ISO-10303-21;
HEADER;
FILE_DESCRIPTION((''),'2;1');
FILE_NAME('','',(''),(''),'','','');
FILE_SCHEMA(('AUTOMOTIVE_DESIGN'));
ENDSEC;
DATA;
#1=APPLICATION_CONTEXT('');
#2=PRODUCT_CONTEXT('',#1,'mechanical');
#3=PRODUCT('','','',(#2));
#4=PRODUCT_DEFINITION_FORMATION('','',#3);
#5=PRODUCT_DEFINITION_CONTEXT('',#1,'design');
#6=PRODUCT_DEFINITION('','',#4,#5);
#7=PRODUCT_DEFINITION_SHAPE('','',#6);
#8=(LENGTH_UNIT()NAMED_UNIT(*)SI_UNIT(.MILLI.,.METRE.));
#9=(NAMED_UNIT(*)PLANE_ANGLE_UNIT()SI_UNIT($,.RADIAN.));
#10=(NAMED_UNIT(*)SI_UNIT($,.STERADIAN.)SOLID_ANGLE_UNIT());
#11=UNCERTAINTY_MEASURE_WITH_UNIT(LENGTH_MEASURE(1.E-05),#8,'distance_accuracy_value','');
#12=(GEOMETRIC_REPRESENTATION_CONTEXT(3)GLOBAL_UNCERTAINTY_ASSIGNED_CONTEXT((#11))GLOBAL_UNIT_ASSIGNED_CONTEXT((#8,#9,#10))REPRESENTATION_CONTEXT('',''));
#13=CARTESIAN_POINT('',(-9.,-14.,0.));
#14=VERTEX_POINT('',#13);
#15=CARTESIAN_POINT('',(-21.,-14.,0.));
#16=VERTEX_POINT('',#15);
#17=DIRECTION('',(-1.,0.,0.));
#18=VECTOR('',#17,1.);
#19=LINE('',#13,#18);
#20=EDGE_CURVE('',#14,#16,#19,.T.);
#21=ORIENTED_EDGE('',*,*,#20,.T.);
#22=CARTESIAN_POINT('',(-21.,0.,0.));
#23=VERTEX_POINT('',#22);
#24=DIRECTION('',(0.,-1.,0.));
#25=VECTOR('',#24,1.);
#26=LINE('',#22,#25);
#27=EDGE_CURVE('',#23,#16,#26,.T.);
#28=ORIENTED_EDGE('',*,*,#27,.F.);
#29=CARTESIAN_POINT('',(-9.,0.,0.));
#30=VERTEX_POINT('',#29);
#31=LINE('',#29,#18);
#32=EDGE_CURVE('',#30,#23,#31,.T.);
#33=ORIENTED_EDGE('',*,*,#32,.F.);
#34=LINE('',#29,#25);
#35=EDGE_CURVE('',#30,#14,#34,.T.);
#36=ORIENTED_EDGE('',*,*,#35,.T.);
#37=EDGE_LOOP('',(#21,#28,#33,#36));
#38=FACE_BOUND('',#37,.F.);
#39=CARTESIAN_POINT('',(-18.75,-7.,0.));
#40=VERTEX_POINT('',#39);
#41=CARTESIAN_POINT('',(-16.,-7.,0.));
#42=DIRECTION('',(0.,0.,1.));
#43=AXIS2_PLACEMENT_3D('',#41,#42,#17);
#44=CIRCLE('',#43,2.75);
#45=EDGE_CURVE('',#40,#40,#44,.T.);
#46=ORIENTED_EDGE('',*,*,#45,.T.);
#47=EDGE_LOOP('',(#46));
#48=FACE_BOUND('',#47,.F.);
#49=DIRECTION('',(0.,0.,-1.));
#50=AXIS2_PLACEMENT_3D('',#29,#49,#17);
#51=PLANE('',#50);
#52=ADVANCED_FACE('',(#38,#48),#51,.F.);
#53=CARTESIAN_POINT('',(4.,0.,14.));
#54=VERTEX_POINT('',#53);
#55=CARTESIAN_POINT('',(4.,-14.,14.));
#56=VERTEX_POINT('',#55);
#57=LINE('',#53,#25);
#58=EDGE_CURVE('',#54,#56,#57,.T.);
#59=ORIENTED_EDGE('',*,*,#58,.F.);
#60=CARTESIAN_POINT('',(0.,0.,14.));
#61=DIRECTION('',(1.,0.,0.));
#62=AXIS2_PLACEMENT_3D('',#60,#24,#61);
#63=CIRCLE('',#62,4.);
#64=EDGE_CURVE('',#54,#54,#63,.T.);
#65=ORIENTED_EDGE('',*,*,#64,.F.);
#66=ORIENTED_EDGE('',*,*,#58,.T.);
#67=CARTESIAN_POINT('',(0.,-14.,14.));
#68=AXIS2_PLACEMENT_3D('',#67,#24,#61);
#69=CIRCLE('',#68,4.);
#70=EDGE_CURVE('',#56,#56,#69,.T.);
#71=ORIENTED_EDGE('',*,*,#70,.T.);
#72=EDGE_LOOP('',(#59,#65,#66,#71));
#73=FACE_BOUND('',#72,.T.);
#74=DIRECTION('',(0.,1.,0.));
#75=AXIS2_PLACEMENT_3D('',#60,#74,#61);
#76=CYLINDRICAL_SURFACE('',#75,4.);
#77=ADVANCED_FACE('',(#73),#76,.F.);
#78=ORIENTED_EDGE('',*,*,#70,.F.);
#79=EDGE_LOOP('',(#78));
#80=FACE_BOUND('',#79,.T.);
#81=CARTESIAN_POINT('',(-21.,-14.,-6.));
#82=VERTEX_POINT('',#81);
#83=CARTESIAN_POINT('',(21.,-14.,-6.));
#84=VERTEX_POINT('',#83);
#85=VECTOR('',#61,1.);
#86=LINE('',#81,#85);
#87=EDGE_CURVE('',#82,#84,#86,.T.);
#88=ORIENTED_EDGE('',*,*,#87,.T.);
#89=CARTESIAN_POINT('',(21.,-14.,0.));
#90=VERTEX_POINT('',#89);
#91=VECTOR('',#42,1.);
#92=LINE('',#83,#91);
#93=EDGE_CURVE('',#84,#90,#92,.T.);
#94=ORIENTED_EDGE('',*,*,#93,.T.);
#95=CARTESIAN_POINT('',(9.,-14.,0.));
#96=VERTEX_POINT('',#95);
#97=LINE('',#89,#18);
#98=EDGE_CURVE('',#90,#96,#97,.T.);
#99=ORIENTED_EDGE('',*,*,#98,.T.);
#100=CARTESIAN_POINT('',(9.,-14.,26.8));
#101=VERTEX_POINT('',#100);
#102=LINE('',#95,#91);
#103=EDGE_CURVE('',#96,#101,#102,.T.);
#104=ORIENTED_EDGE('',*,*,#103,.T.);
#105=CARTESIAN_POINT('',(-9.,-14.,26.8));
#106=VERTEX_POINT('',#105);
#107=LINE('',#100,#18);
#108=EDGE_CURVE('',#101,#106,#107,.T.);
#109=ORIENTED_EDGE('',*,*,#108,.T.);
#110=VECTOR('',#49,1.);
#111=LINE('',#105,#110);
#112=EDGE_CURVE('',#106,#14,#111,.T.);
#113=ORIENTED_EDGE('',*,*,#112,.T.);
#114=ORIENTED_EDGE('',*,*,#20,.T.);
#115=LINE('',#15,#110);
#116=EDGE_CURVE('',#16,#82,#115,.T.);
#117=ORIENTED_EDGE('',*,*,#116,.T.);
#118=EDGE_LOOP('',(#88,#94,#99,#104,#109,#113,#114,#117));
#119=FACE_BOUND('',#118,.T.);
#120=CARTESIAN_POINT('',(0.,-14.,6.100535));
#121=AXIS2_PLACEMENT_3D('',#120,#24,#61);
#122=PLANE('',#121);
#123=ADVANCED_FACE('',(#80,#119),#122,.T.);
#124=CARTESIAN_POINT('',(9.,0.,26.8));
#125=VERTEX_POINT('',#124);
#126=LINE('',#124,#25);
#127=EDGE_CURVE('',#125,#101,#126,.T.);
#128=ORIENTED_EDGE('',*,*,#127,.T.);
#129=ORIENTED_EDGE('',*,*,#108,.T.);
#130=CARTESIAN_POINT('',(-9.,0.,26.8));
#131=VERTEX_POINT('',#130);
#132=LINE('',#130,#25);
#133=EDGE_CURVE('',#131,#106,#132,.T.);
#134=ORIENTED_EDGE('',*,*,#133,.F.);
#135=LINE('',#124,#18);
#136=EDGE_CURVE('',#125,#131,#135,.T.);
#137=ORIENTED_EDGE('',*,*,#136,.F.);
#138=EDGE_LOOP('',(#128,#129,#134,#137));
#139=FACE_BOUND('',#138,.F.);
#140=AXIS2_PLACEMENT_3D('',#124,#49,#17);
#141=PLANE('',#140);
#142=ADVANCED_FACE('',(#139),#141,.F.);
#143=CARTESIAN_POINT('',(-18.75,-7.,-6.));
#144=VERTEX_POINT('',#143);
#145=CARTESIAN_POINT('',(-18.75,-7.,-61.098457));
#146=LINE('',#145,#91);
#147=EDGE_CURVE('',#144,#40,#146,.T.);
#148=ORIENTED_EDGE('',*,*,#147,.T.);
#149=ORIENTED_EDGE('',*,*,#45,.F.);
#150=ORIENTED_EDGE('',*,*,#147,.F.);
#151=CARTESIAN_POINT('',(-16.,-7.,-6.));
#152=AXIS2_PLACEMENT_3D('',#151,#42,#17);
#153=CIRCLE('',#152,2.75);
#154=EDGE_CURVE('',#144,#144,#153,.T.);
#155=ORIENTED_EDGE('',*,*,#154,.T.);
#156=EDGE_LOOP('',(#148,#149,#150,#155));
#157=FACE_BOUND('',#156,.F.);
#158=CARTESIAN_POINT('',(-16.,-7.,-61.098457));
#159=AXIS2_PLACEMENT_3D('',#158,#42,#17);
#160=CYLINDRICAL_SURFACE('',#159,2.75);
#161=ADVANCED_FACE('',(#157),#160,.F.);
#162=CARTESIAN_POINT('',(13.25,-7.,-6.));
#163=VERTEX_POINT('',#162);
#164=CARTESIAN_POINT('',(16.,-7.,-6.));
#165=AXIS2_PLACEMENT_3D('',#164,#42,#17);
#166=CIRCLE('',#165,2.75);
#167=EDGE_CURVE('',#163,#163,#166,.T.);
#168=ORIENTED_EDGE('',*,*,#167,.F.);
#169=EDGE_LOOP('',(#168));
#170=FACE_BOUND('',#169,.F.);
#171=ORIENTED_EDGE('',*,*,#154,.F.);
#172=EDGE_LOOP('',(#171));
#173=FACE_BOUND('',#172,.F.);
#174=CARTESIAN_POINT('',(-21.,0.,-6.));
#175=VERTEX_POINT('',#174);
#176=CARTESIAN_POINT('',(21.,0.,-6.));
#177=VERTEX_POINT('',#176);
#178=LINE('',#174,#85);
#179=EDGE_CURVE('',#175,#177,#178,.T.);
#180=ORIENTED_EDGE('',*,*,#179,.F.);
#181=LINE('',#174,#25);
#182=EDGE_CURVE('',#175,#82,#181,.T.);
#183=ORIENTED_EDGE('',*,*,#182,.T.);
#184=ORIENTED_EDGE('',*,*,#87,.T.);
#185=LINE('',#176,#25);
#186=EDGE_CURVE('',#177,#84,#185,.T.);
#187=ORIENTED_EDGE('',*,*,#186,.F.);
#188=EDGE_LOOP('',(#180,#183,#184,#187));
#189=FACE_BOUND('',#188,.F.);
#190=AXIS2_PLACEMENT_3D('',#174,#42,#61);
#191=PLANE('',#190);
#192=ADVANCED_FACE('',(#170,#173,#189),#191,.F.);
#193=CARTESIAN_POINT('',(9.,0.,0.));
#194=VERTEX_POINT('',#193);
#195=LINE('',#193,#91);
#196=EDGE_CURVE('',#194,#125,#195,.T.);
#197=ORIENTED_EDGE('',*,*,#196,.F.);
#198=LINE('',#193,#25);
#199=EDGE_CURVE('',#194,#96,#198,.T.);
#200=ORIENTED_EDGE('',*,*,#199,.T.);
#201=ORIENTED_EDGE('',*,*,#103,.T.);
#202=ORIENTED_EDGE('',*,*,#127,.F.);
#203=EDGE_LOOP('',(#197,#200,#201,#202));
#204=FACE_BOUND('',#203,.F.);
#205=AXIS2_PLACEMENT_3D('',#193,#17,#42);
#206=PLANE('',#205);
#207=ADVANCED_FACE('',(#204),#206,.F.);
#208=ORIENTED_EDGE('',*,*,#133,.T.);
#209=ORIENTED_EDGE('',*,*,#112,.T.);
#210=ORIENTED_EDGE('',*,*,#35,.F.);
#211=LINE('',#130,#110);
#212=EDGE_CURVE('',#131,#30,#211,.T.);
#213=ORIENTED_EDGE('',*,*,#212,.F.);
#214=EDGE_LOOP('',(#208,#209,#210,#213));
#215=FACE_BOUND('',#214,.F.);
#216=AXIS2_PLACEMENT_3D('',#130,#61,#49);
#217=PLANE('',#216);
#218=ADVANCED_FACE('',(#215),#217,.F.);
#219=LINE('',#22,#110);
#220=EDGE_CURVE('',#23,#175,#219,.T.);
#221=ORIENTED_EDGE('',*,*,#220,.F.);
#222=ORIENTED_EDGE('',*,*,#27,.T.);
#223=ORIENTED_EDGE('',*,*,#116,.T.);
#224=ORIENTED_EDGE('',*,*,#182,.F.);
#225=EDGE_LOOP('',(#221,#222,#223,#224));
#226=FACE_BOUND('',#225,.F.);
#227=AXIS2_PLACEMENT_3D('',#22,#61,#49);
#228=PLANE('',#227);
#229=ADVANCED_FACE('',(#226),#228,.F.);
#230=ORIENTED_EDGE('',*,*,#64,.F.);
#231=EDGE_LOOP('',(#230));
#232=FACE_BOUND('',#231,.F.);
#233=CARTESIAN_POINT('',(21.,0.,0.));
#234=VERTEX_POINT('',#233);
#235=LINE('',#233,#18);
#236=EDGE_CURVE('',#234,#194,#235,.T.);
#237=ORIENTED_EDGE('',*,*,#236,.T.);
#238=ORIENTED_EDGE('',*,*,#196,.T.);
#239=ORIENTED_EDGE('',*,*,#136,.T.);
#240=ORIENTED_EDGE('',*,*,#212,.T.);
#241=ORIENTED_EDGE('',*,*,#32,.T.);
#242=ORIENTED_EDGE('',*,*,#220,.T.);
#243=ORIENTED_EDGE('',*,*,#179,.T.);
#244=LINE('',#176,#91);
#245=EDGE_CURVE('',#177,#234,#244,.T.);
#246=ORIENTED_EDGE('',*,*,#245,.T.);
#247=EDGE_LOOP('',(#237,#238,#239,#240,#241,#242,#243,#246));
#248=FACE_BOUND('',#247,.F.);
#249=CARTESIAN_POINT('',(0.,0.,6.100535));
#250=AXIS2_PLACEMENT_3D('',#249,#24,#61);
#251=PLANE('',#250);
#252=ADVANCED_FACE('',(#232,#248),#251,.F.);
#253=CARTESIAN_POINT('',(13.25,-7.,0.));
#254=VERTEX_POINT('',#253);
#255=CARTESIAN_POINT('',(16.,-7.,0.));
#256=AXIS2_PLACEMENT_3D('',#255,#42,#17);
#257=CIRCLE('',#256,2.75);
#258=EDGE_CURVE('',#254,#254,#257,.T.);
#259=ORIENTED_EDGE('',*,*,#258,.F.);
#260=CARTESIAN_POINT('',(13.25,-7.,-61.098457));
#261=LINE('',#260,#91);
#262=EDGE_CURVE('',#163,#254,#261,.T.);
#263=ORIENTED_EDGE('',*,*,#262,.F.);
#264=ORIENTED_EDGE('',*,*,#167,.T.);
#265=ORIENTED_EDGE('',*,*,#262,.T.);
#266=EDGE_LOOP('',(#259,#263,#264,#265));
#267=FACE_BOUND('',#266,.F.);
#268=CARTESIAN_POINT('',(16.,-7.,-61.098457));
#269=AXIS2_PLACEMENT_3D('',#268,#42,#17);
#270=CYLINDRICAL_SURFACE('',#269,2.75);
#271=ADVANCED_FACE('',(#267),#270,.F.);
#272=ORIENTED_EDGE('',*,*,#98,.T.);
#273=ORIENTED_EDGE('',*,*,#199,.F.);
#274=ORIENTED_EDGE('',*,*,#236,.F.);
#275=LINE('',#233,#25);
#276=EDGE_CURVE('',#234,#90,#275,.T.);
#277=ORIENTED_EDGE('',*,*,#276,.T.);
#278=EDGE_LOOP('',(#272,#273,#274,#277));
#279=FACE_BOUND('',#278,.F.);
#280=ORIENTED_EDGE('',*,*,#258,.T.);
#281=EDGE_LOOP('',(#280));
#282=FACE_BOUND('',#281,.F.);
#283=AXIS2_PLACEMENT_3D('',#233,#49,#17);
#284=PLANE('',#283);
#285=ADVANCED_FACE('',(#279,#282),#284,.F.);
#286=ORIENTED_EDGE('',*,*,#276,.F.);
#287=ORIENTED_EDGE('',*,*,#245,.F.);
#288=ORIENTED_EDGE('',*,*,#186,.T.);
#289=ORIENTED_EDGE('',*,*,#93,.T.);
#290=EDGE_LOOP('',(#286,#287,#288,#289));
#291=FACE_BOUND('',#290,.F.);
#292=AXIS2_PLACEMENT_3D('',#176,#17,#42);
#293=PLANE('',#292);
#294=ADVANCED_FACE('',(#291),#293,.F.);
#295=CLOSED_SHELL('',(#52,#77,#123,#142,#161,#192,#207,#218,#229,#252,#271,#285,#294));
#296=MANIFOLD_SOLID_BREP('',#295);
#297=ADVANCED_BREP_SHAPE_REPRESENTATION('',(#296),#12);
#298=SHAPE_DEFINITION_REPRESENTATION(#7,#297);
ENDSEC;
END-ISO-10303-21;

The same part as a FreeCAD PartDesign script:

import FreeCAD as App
import Part
import Sketcher

V = App.Vector

doc = App.newDocument("Part")
body = doc.addObject("PartDesign::Body", "Body")

sketch1 = body.newObject("Sketcher::SketchObject", "Sketch")
sketch1.AttachmentSupport = (doc.getObject("XZ_Plane"), [""])
sketch1.MapMode = "FlatFace"
sketch1.addGeometry([
    Part.LineSegment(V(-21, -6, 0), V(21, -6, 0)),
    Part.LineSegment(V(21, -6, 0), V(21, 0, 0)),
    Part.LineSegment(V(21, 0, 0), V(9, 0, 0)),
    Part.LineSegment(V(9, 0, 0), V(9, 26.8, 0)),
    Part.LineSegment(V(9, 26.8, 0), V(-9, 26.8, 0)),
    Part.LineSegment(V(-9, 26.8, 0), V(-9, 0, 0)),
    Part.LineSegment(V(-9, 0, 0), V(-21, 0, 0)),
    Part.LineSegment(V(-21, 0, 0), V(-21, -6, 0)),
    Part.Circle(V(0, 14, 0), V(0, 0, 1), 4),
], False)
sketch1.addConstraint([
    Sketcher.Constraint("Coincident", 0, 2, 1, 1),
    Sketcher.Constraint("Coincident", 1, 2, 2, 1),
    Sketcher.Constraint("Coincident", 2, 2, 3, 1),
    Sketcher.Constraint("Coincident", 3, 2, 4, 1),
    Sketcher.Constraint("Coincident", 4, 2, 5, 1),
    Sketcher.Constraint("Coincident", 5, 2, 6, 1),
    Sketcher.Constraint("Coincident", 6, 2, 7, 1),
    Sketcher.Constraint("Coincident", 7, 2, 0, 1),
    Sketcher.Constraint("Horizontal", 0),
    Sketcher.Constraint("Vertical", 1),
    Sketcher.Constraint("Horizontal", 2),
    Sketcher.Constraint("Vertical", 3),
    Sketcher.Constraint("Horizontal", 4),
    Sketcher.Constraint("Vertical", 5),
    Sketcher.Constraint("Horizontal", 6),
    Sketcher.Constraint("Vertical", 7),
    Sketcher.Constraint("Symmetric", 2, 2, 5, 2, -1, 1),
    Sketcher.Constraint("Symmetric", 1, 2, 6, 2, -2),
    Sketcher.Constraint("PointOnObject", 8, 3, -2),
    Sketcher.Constraint("Diameter", 8, 8.0),
    Sketcher.Constraint("DistanceX", 0, 1, 0, 2, 42.0),
    Sketcher.Constraint("DistanceX", 2, 2, 2, 1, 12.0),
    Sketcher.Constraint("DistanceY", 1, 1, 1, 2, 6.0),
    Sketcher.Constraint("DistanceY", 3, 1, 3, 2, 26.8),
    Sketcher.Constraint("DistanceY", -1, 1, 8, 3, 14.0),
])
pad1 = body.newObject("PartDesign::Pad", "Pad")
pad1.Profile = sketch1
pad1.Length = 14

sketch2 = body.newObject("Sketcher::SketchObject", "Sketch001")
sketch2.AttachmentSupport = (doc.getObject("XY_Plane"), [""])
sketch2.MapMode = "FlatFace"
sketch2.AttachmentOffset = App.Placement(V(0, 0, -6), App.Rotation())
sketch2.addGeometry([
    Part.Circle(V(-16, -7, 0), V(0, 0, 1), 2.75),
    Part.Circle(V(16, -7, 0), V(0, 0, 1), 2.75),
], False)
sketch2.addConstraint([
    Sketcher.Constraint("Equal", 0, 1),
    Sketcher.Constraint("Symmetric", 0, 3, 1, 3, -2),
    Sketcher.Constraint("Diameter", 0, 5.5),
    Sketcher.Constraint("DistanceX", 0, 3, -1, 1, 16.0),
    Sketcher.Constraint("DistanceY", 0, 3, -1, 1, 7.0),
])
doc.recompute()
hole = body.newObject("PartDesign::Hole", "Hole")
hole.Profile = sketch2
hole.ThreadType = "None"
hole.Diameter = 5.5
hole.DepthType = "ThroughAll"
hole.Reversed = True

doc.recompute()
